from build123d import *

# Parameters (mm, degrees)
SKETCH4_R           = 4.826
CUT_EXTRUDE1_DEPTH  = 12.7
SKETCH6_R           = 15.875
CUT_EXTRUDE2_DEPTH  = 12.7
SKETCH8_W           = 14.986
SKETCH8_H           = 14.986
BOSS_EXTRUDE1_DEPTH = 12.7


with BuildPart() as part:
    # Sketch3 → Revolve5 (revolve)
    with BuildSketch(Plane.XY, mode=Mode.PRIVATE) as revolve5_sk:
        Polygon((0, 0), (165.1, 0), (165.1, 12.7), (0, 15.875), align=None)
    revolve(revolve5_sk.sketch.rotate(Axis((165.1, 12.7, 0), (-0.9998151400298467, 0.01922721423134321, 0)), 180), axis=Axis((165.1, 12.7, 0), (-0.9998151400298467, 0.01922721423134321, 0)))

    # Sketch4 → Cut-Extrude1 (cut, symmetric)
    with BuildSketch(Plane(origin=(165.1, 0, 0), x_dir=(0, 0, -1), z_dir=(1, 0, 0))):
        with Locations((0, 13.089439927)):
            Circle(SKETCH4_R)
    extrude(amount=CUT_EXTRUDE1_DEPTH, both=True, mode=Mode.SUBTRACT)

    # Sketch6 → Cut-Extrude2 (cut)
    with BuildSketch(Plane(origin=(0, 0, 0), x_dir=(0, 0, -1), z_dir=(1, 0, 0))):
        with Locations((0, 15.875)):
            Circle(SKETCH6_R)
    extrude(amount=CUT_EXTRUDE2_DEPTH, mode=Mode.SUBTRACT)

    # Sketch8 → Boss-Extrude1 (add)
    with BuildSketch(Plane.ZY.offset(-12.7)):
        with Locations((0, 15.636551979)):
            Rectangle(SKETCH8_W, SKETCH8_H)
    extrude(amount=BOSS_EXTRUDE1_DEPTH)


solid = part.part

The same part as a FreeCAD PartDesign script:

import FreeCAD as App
import Part
import Sketcher
Q = App.Units.Quantity

doc = App.newDocument("Part")
params = doc.addObject("Spreadsheet::Sheet", "Params")
for row, (alias, value) in enumerate([
    ("sketch1_width", "6.5 in"),
    ("sketch1_height", "0.5 in"),
    ("sketch1_height2", "0.625 in"),
    ("revolution_angle", "360 deg"),
    ("sketch2_diameter", "0.38 in"),
    ("pocket1_length", "1 in"),
    ("sketch3_diameter", "1.25 in"),
    ("pocket2_length", "0.5 in"),
    ("sketch4_width", "0.59 in"),
    ("pad1_length", "0.5 in"),
], start=1):
    params.set(f"A{row}", alias)
    params.set(f"B{row}", "=" + value)
    params.setAlias(f"B{row}", alias)

body = doc.addObject("PartDesign::Body", "Body")

# Sketch on XY plane
sketch1 = body.newObject("Sketcher::SketchObject", "Sketch")
sketch1.AttachmentSupport = (doc.getObject("XY_Plane"), [""])
sketch1.MapMode = "FlatFace"
sketch1.addGeometry(Part.LineSegment(App.Vector(0, 0, 0), App.Vector(165.1, 0, 0)), False)
sketch1.addGeometry(Part.LineSegment(App.Vector(165.1, 0, 0), App.Vector(165.1, 12.7, 0)), False)
sketch1.addGeometry(Part.LineSegment(App.Vector(165.1, 12.7, 0), App.Vector(0, 15.875, 0)), False)
sketch1.addGeometry(Part.LineSegment(App.Vector(0, 15.875, 0), App.Vector(0, 0, 0)), False)
sketch1.addGeometry(Part.LineSegment(App.Vector(165.34414, 12.695305, 0), App.Vector(0, 15.875, 0)), True)  # axis
sketch1.addConstraint(Sketcher.Constraint("Coincident", 0, 2, 1, 1))
sketch1.addConstraint(Sketcher.Constraint("Coincident", 1, 2, 2, 1))
sketch1.addConstraint(Sketcher.Constraint("Coincident", 2, 2, 3, 1))
sketch1.addConstraint(Sketcher.Constraint("Coincident", 3, 2, 0, 1))
sketch1.addConstraint(Sketcher.Constraint("Horizontal", 0))
sketch1.addConstraint(Sketcher.Constraint("Vertical", 1))
sketch1.addConstraint(Sketcher.Constraint("Vertical", 3))
sketch1.addConstraint(Sketcher.Constraint("Coincident", 3, 2, -1, 1))
sketch1.addConstraint(Sketcher.Constraint("Coincident", 4, 2, 2, 2))
sketch1.addConstraint(Sketcher.Constraint("Parallel", 2, 4))
sketch1.addConstraint(Sketcher.Constraint("DistanceX", 0, 1, 0, 2, Q("6.5 in")))
sketch1.addConstraint(Sketcher.Constraint("DistanceY", 1, 1, 1, 2, Q("0.5 in")))
sketch1.addConstraint(Sketcher.Constraint("DistanceY", 3, 2, 3, 1, Q("0.625 in")))
sketch1.addConstraint(Sketcher.Constraint("Distance", 4, Q("165.374712 mm")))
sketch1.setExpression("Constraints[10]", "Params.sketch1_width")
sketch1.setExpression("Constraints[11]", "Params.sketch1_height")
sketch1.setExpression("Constraints[12]", "Params.sketch1_height2")
revolution = body.newObject("PartDesign::Revolution", "Revolution")
revolution.Profile = sketch1
revolution.ReferenceAxis = (sketch1, ["Axis0"])
revolution.setExpression("Angle", "Params.revolution_angle")

# Sketch on YZ plane
sketch2 = body.newObject("Sketcher::SketchObject", "Sketch001")
sketch2.AttachmentSupport = (doc.getObject("YZ_Plane"), [""])
sketch2.MapMode = "FlatFace"
sketch2.AttachmentOffset = App.Placement(App.Vector(0, 0, 6.5 * 25.4), App.Rotation())
sketch2.addGeometry(Part.Circle(App.Vector(13.08944, 0, 0), App.Vector(0, 0, 1), 4.826), False)
sketch2.addConstraint(Sketcher.Constraint("PointOnObject", 0, 3, -1))
sketch2.addConstraint(Sketcher.Constraint("Diameter", 0, Q("0.38 in")))
sketch2.addConstraint(Sketcher.Constraint("DistanceX", -1, 1, 0, 3, Q("13.08944 mm")))
sketch2.setExpression("Constraints[1]", "Params.sketch2_diameter")
pocket1 = body.newObject("PartDesign::Pocket", "Pocket")
pocket1.Profile = sketch2
pocket1.setExpression("Length", "Params.pocket1_length")
pocket1.Midplane = True

# Sketch on YZ plane
sketch3 = body.newObject("Sketcher::SketchObject", "Sketch002")
sketch3.AttachmentSupport = (doc.getObject("YZ_Plane"), [""])
sketch3.MapMode = "FlatFace"
sketch3.addGeometry(Part.Circle(App.Vector(15.875, 0, 0), App.Vector(0, 0, 1), 15.875), False)
sketch3.addConstraint(Sketcher.Constraint("PointOnObject", 0, 3, -1))
sketch3.addConstraint(Sketcher.Constraint("Diameter", 0, Q("1.25 in")))
sketch3.addConstraint(Sketcher.Constraint("DistanceX", -1, 1, 0, 3, Q("0.625 in")))
sketch3.setExpression("Constraints[1]", "Params.sketch3_diameter")
pocket2 = body.newObject("PartDesign::Pocket", "Pocket001")
pocket2.Profile = sketch3
pocket2.setExpression("Length", "Params.pocket2_length")
pocket2.Reversed = True

# Sketch on YZ plane
sketch4 = body.newObject("Sketcher::SketchObject", "Sketch003")
sketch4.AttachmentSupport = (doc.getObject("YZ_Plane"), [""])
sketch4.MapMode = "FlatFace"
sketch4.AttachmentOffset = App.Placement(App.Vector(0, 0, 0.5 * 25.4), App.Rotation())
sketch4.addGeometry(Part.LineSegment(App.Vector(23.129552, -7.493, 0), App.Vector(8.143552, -7.493, 0)), False)
sketch4.addGeometry(Part.LineSegment(App.Vector(8.143552, -7.493, 0), App.Vector(8.143552, 7.493, 0)), False)
sketch4.addGeometry(Part.LineSegment(App.Vector(8.143552, 7.493, 0), App.Vector(23.129552, 7.493, 0)), False)
sketch4.addGeometry(Part.LineSegment(App.Vector(23.129552, 7.493, 0), App.Vector(23.129552, -7.493, 0)), False)
sketch4.addConstraint(Sketcher.Constraint("Coincident", 0, 2, 1, 1))
sketch4.addConstraint(Sketcher.Constraint("Coincident", 1, 2, 2, 1))
sketch4.addConstraint(Sketcher.Constraint("Coincident", 2, 2, 3, 1))
sketch4.addConstraint(Sketcher.Constraint("Coincident", 3, 2, 0, 1))
sketch4.addConstraint(Sketcher.Constraint("Horizontal", 0))
sketch4.addConstraint(Sketcher.Constraint("Vertical", 1))
sketch4.addConstraint(Sketcher.Constraint("Horizontal", 2))
sketch4.addConstraint(Sketcher.Constraint("Vertical", 3))
sketch4.addConstraint(Sketcher.Constraint("Equal", 2, 1))
sketch4.addConstraint(Sketcher.Constraint("DistanceX", 0, 2, 0, 1, Q("0.59 in")))
sketch4.addConstraint(Sketcher.Constraint("DistanceY", 0, 2, -1, 1, Q("0.295 in")))
sketch4.addConstraint(Sketcher.Constraint("DistanceX", -1, 1, 0, 2, Q("8.143552 mm")))
sketch4.setExpression("Constraints[9]", "Params.sketch4_width")
pad1 = body.newObject("PartDesign::Pad", "Pad")
pad1.Profile = sketch4
pad1.setExpression("Length", "Params.pad1_length")
pad1.Reversed = True

doc.recompute()
